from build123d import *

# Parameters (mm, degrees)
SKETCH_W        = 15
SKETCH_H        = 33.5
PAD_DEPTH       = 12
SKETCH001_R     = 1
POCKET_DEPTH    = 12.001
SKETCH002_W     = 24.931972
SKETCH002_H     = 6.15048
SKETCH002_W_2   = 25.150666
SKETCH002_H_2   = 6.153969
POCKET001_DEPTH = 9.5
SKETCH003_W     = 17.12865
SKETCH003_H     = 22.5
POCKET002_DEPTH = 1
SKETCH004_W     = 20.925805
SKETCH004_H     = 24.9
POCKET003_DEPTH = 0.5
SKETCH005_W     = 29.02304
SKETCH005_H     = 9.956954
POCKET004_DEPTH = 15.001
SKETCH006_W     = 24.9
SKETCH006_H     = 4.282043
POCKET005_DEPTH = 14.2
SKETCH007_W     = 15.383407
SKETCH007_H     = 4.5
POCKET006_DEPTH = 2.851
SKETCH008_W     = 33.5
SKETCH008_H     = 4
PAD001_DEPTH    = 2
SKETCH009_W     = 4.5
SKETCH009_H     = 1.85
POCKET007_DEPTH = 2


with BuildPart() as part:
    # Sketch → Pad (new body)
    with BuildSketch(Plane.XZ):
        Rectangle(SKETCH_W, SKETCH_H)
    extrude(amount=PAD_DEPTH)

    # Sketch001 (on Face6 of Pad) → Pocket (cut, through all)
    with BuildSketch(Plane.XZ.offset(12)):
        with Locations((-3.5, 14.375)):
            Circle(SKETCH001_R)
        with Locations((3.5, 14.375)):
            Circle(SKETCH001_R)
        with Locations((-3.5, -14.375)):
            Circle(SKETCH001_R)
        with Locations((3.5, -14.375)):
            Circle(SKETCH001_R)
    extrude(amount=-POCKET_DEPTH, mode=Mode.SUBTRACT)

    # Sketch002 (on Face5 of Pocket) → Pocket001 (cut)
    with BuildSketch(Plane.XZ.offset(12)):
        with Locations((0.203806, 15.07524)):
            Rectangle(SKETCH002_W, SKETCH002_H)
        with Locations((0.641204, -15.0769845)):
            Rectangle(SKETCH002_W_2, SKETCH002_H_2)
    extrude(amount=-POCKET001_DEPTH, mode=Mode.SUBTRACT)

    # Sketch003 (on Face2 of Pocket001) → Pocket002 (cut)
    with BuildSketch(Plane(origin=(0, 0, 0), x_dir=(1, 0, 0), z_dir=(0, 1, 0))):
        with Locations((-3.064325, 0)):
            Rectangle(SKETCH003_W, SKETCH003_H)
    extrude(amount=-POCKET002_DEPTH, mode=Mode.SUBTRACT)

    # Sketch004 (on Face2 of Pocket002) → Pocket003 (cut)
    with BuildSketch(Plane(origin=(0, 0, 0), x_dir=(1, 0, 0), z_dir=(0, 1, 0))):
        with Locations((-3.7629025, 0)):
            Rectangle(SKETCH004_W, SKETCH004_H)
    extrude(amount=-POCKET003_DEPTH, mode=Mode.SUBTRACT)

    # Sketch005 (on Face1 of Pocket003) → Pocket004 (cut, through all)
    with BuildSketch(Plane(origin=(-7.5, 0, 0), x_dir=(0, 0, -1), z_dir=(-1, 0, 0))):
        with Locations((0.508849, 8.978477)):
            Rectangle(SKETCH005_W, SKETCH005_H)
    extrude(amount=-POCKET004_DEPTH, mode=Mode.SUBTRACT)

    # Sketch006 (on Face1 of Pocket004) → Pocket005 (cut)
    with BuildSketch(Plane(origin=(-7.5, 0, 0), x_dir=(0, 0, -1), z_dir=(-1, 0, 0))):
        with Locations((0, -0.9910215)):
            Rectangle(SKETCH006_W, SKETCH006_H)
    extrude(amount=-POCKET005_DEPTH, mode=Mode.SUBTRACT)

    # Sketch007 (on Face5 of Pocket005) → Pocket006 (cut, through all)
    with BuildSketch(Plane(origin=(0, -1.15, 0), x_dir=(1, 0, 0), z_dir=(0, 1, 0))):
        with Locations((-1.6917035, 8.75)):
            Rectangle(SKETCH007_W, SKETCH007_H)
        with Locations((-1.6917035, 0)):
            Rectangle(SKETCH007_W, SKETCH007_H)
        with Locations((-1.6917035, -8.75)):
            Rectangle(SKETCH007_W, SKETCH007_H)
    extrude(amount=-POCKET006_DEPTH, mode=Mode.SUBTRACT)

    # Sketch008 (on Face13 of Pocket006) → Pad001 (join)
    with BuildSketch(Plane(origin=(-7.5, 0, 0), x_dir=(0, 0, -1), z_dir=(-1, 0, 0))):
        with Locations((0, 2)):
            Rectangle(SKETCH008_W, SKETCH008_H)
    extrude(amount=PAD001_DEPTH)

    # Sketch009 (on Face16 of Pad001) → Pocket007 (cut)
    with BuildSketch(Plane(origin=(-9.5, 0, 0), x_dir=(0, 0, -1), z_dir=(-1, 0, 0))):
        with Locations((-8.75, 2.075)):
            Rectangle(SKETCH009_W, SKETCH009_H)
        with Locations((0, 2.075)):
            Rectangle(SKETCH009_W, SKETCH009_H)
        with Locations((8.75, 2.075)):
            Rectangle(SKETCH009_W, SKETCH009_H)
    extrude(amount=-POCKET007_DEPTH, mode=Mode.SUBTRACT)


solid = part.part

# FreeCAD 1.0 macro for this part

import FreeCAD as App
import Part
import Sketcher
from FreeCAD import Vector

doc = App.newDocument("Part")
body = doc.addObject("PartDesign::Body", "Body")

# Sketch on XZ plane
sketch1 = body.newObject("Sketcher::SketchObject", "Sketch")
sketch1.AttachmentSupport = (doc.getObject("XZ_Plane"), [""])
sketch1.MapMode = "FlatFace"
sketch1.addGeometry([
    Part.LineSegment(Vector(-8, 17, 0), Vector(-8, -17, 0)),
    Part.LineSegment(Vector(-8, -17, 0), Vector(8, -17, 0)),
    Part.LineSegment(Vector(8, -17, 0), Vector(8, 17, 0)),
    Part.LineSegment(Vector(8, 17, 0), Vector(-8, 17, 0)),
], False)
sketch1.addConstraint([
    Sketcher.Constraint("Coincident", 0, 2, 1, 1),
    Sketcher.Constraint("Coincident", 1, 2, 2, 1),
    Sketcher.Constraint("Coincident", 2, 2, 3, 1),
    Sketcher.Constraint("Coincident", 3, 2, 0, 1),
    Sketcher.Constraint("Vertical", 0),
    Sketcher.Constraint("Horizontal", 1),
    Sketcher.Constraint("Vertical", 2),
    Sketcher.Constraint("Horizontal", 3),
    Sketcher.Constraint("Symmetric", 0, 2, 2, 2, -1, 1),
    Sketcher.Constraint("DistanceX", 1, 1, 1, 2, 15.0),
    Sketcher.Constraint("DistanceY", 0, 2, 0, 1, 33.5),
])
pad1 = body.newObject("PartDesign::Pad", "Pad")
pad1.Profile = sketch1
pad1.Length = 12

# Sketch on XZ plane
sketch2 = body.newObject("Sketcher::SketchObject", "Sketch001")
sketch2.AttachmentSupport = (doc.getObject("XZ_Plane"), [""])
sketch2.MapMode = "FlatFace"
sketch2.AttachmentOffset = App.Placement(Vector(0, 0, 12), App.Rotation())
sketch2.addGeometry([
    Part.Circle(Vector(-3.5, 14.4, 0), Vector(0, 0, 1), 1),
    Part.Circle(Vector(3.5, 14.4, 0), Vector(0, 0, 1), 1),
    Part.Circle(Vector(-3.5, -14.4, 0), Vector(0, 0, 1), 1),
    Part.Circle(Vector(3.5, -14.4, 0), Vector(0, 0, 1), 1),
], False)
sketch2.addConstraint([
    Sketcher.Constraint("Equal", 0, 1),
    Sketcher.Constraint("Equal", 1, 2),
    Sketcher.Constraint("Equal", 2, 3),
    Sketcher.Constraint("Symmetric", 1, 3, 2, 3, -1, 1),
    Sketcher.Constraint("Symmetric", 0, 3, 3, 3, -1, 1),
    Sketcher.Constraint("Symmetric", 0, 3, 1, 3, -2),
    Sketcher.Constraint("Diameter", 0, 2.0),
    Sketcher.Constraint("DistanceX", 0, 3, 1, 3, 7.0),
    Sketcher.Constraint("DistanceY", 2, 3, 0, 3, 28.75),
])
pocket1 = body.newObject("PartDesign::Pocket", "Pocket")
pocket1.Profile = sketch2
pocket1.Type = "ThroughAll"

# Sketch on XZ plane
sketch3 = body.newObject("Sketcher::SketchObject", "Sketch002")
sketch3.AttachmentSupport = (doc.getObject("XZ_Plane"), [""])
sketch3.MapMode = "FlatFace"
sketch3.AttachmentOffset = App.Placement(Vector(0, 0, 12), App.Rotation())
sketch3.addGeometry([
    Part.LineSegment(Vector(-12, 18, 0), Vector(-12, 12, 0)),  # 0
    Part.LineSegment(Vector(-12, 12, 0), Vector(13, 12, 0)),  # 1
    Part.LineSegment(Vector(13, 12, 0), Vector(13, 18, 0)),  # 2
    Part.LineSegment(Vector(13, 18, 0), Vector(-12, 18, 0)),  # 3
    Part.LineSegment(Vector(-12, -12, 0), Vector(-12, -18, 0)),  # 4
    Part.LineSegment(Vector(-12, -18, 0), Vector(13, -18, 0)),  # 5
    Part.LineSegment(Vector(13, -18, 0), Vector(13, -12, 0)),  # 6
    Part.LineSegment(Vector(13, -12, 0), Vector(-12, -12, 0)),  # 7
], False)
sketch3.addConstraint([
    Sketcher.Constraint("Coincident", 0, 2, 1, 1),
    Sketcher.Constraint("Coincident", 1, 2, 2, 1),
    Sketcher.Constraint("Coincident", 2, 2, 3, 1),
    Sketcher.Constraint("Coincident", 3, 2, 0, 1),
    Sketcher.Constraint("Coincident", 4, 2, 5, 1),
    Sketcher.Constraint("Coincident", 5, 2, 6, 1),
    Sketcher.Constraint("Coincident", 6, 2, 7, 1),
    Sketcher.Constraint("Coincident", 7, 2, 4, 1),
    Sketcher.Constraint("Vertical", 0),
    Sketcher.Constraint("Horizontal", 1),
    Sketcher.Constraint("Vertical", 2),
    Sketcher.Constraint("Horizontal", 3),
    Sketcher.Constraint("Vertical", 4),
    Sketcher.Constraint("Horizontal", 5),
    Sketcher.Constraint("Vertical", 6),
    Sketcher.Constraint("Horizontal", 7),
    Sketcher.Constraint("DistanceY", -1, 1, 0, 2, 12.0),
    Sketcher.Constraint("DistanceY", 6, 2, -1, 1, 12.0),
    Sketcher.Constraint("DistanceY", 0, 2, 0, 1, 6.15048),
    Sketcher.Constraint("DistanceY", 4, 2, 4, 1, 6.153969),
    Sketcher.Constraint("DistanceX", 1, 1, 1, 2, 24.931972),
    Sketcher.Constraint("DistanceX", 5, 1, 5, 2, 25.150666),
    Sketcher.Constraint("DistanceX", 0, 2, -1, 1, 12.26218),
    Sketcher.Constraint("DistanceX", 4, 2, -1, 1, 11.934129),
])
pocket2 = body.newObject("PartDesign::Pocket", "Pocket001")
pocket2.Profile = sketch3
pocket2.Length = 9.5

# Sketch on XZ plane
sketch4 = body.newObject("Sketcher::SketchObject", "Sketch003")
sketch4.AttachmentSupport = (doc.getObject("XZ_Plane"), [""])
sketch4.MapMode = "FlatFace"
sketch4.addGeometry([
    Part.LineSegment(Vector(-12, -11, 0), Vector(-12, 11, 0)),
    Part.LineSegment(Vector(-12, 11, 0), Vector(6, 11, 0)),
    Part.LineSegment(Vector(6, 11, 0), Vector(6, -11, 0)),
    Part.LineSegment(Vector(6, -11, 0), Vector(-12, -11, 0)),
], False)
sketch4.addConstraint([
    Sketcher.Constraint("Coincident", 0, 2, 1, 1),
    Sketcher.Constraint("Coincident", 1, 2, 2, 1),
    Sketcher.Constraint("Coincident", 2, 2, 3, 1),
    Sketcher.Constraint("Coincident", 3, 2, 0, 1),
    Sketcher.Constraint("Vertical", 0),
    Sketcher.Constraint("Horizontal", 1),
    Sketcher.Constraint("Vertical", 2),
    Sketcher.Constraint("Horizontal", 3),
    Sketcher.Constraint("DistanceY", 0, 1, 0, 2, 22.5),
    Sketcher.Constraint("DistanceX", -1, 1, 1, 2, 5.5),
    Sketcher.Constraint("DistanceY", -1, 1, 0, 2, 11.25),
    Sketcher.Constraint("DistanceX", 1, 1, 1, 2, 17.12865),
])
pocket3 = body.newObject("PartDesign::Pocket", "Pocket002")
pocket3.Profile = sketch4
pocket3.Length = 1
pocket3.Reversed = True

# Sketch on XZ plane
sketch5 = body.newObject("Sketcher::SketchObject", "Sketch004")
sketch5.AttachmentSupport = (doc.getObject("XZ_Plane"), [""])
sketch5.MapMode = "FlatFace"
sketch5.addGeometry([
    Part.LineSegment(Vector(-14, -12, 0), Vector(-14, 12, 0)),
    Part.LineSegment(Vector(-14, 12, 0), Vector(7, 12, 0)),
    Part.LineSegment(Vector(7, 12, 0), Vector(7, -12, 0)),
    Part.LineSegment(Vector(7, -12, 0), Vector(-14, -12, 0)),
], False)
sketch5.addConstraint([
    Sketcher.Constraint("Coincident", 0, 2, 1, 1),
    Sketcher.Constraint("Coincident", 1, 2, 2, 1),
    Sketcher.Constraint("Coincident", 2, 2, 3, 1),
    Sketcher.Constraint("Coincident", 3, 2, 0, 1),
    Sketcher.Constraint("Vertical", 0),
    Sketcher.Constraint("Horizontal", 1),
    Sketcher.Constraint("Vertical", 2),
    Sketcher.Constraint("Horizontal", 3),
    Sketcher.Constraint("DistanceY", 0, 1, 0, 2, 24.9),
    Sketcher.Constraint("DistanceX", -1, 1, 1, 2, 6.7),
    Sketcher.Constraint("DistanceY", -1, 1, 0, 2, 12.45),
    Sketcher.Constraint("DistanceX", 1, 1, 1, 2, 20.925805),
])
pocket4 = body.newObject("PartDesign::Pocket", "Pocket003")
pocket4.Profile = sketch5
pocket4.Length = 0.5
pocket4.Reversed = True

# Sketch on YZ plane
sketch6 = body.newObject("Sketcher::SketchObject", "Sketch005")
sketch6.AttachmentSupport = (doc.getObject("YZ_Plane"), [""])
sketch6.MapMode = "FlatFace"
sketch6.AttachmentOffset = App.Placement(Vector(0, 0, -7.5), App.Rotation())
sketch6.addGeometry([
    Part.LineSegment(Vector(-14, 14, 0), Vector(-4, 14, 0)),
    Part.LineSegment(Vector(-4, 14, 0), Vector(-4, -15, 0)),
    Part.LineSegment(Vector(-4, -15, 0), Vector(-14, -15, 0)),
    Part.LineSegment(Vector(-14, -15, 0), Vector(-14, 14, 0)),
], False)
sketch6.addConstraint([
    Sketcher.Constraint("Coincident", 0, 2, 1, 1),
    Sketcher.Constraint("Coincident", 1, 2, 2, 1),
    Sketcher.Constraint("Coincident", 2, 2, 3, 1),
    Sketcher.Constraint("Coincident", 3, 2, 0, 1),
    Sketcher.Constraint("Horizontal", 0),
    Sketcher.Constraint("Vertical", 1),
    Sketcher.Constraint("Horizontal", 2),
    Sketcher.Constraint("Vertical", 3),
    Sketcher.Constraint("DistanceX", 0, 2, -1, 1, 4.0),
    Sketcher.Constraint("DistanceY", 1, 2, 1, 1, 29.02304),
    Sketcher.Constraint("DistanceX", 0, 1, 0, 2, 9.956954),
    Sketcher.Constraint("DistanceY", -1, 1, 0, 2, 14.002671),
])
pocket5 = body.newObject("PartDesign::Pocket", "Pocket004")
pocket5.Profile = sketch6
pocket5.Type = "ThroughAll"
pocket5.Reversed = True

# Sketch on YZ plane
sketch7 = body.newObject("Sketcher::SketchObject", "Sketch006")
sketch7.AttachmentSupport = (doc.getObject("YZ_Plane"), [""])
sketch7.MapMode = "FlatFace"
sketch7.AttachmentOffset = App.Placement(Vector(0, 0, -7.5), App.Rotation())
sketch7.addGeometry([
    Part.LineSegment(Vector(-1.1, 12.4, 0), Vector(3.1, 12.4, 0)),
    Part.LineSegment(Vector(3.1, 12.4, 0), Vector(3.1, -12.4, 0)),
    Part.LineSegment(Vector(3.1, -12.4, 0), Vector(-1.1, -12.4, 0)),
    Part.LineSegment(Vector(-1.1, -12.4, 0), Vector(-1.1, 12.4, 0)),
], False)
sketch7.addConstraint([
    Sketcher.Constraint("Coincident", 0, 2, 1, 1),
    Sketcher.Constraint("Coincident", 1, 2, 2, 1),
    Sketcher.Constraint("Coincident", 2, 2, 3, 1),
    Sketcher.Constraint("Coincident", 3, 2, 0, 1),
    Sketcher.Constraint("Horizontal", 0),
    Sketcher.Constraint("Vertical", 1),
    Sketcher.Constraint("Horizontal", 2),
    Sketcher.Constraint("Vertical", 3),
    Sketcher.Constraint("DistanceY", 1, 2, 1, 1, 24.9),
    Sketcher.Constraint("DistanceY", -1, 1, 0, 2, 12.45),
    Sketcher.Constraint("DistanceX", 2, 2, -1, 1, 1.15),
    Sketcher.Constraint("DistanceX", 0, 1, 0, 2, 4.282043),
])
pocket6 = body.newObject("PartDesign::Pocket", "Pocket005")
pocket6.Profile = sketch7
pocket6.Length = 14.2
pocket6.Reversed = True

# Sketch on XZ plane
sketch8 = body.newObject("Sketcher::SketchObject", "Sketch007")
sketch8.AttachmentSupport = (doc.getObject("XZ_Plane"), [""])
sketch8.MapMode = "FlatFace"
sketch8.AttachmentOffset = App.Placement(Vector(0, 0, 1.15), App.Rotation())
sketch8.addGeometry([
    Part.LineSegment(Vector(-9.4, -11, 0), Vector(-9.4, -6.5, 0)),  # 0
    Part.LineSegment(Vector(-9.4, -6.5, 0), Vector(6, -6.5, 0)),  # 1
    Part.LineSegment(Vector(6, -6.5, 0), Vector(6, -11, 0)),  # 2
    Part.LineSegment(Vector(6, -11, 0), Vector(-9.4, -11, 0)),  # 3
    Part.LineSegment(Vector(-9.4, -2.2, 0), Vector(-9.4, 2.2, 0)),  # 4
    Part.LineSegment(Vector(-9.4, 2.2, 0), Vector(6, 2.2, 0)),  # 5
    Part.LineSegment(Vector(6, 2.2, 0), Vector(6, -2.2, 0)),  # 6
    Part.LineSegment(Vector(6, -2.2, 0), Vector(-9.4, -2.2, 0)),  # 7
    Part.LineSegment(Vector(-9.4, 6.5, 0), Vector(-9.4, 11, 0)),  # 8
    Part.LineSegment(Vector(-9.4, 11, 0), Vector(6, 11, 0)),  # 9
    Part.LineSegment(Vector(6, 11, 0), Vector(6, 6.5, 0)),  # 10
    Part.LineSegment(Vector(6, 6.5, 0), Vector(-9.4, 6.5, 0)),  # 11
], False)
sketch8.addConstraint([
    Sketcher.Constraint("Coincident", 0, 2, 1, 1),
    Sketcher.Constraint("Coincident", 1, 2, 2, 1),
    Sketcher.Constraint("Coincident", 2, 2, 3, 1),
    Sketcher.Constraint("Coincident", 3, 2, 0, 1),
    Sketcher.Constraint("Coincident", 4, 2, 5, 1),
    Sketcher.Constraint("Coincident", 5, 2, 6, 1),
    Sketcher.Constraint("Coincident", 6, 2, 7, 1),
    Sketcher.Constraint("Coincident", 7, 2, 4, 1),
    Sketcher.Constraint("Coincident", 8, 2, 9, 1),
    Sketcher.Constraint("Coincident", 9, 2, 10, 1),
    Sketcher.Constraint("Coincident", 10, 2, 11, 1),
    Sketcher.Constraint("Coincident", 11, 2, 8, 1),
    Sketcher.Constraint("Vertical", 0),
    Sketcher.Constraint("Horizontal", 1),
    Sketcher.Constraint("Vertical", 2),
    Sketcher.Constraint("Horizontal", 3),
    Sketcher.Constraint("Vertical", 4),
    Sketcher.Constraint("Horizontal", 5),
    Sketcher.Constraint("Vertical", 6),
    Sketcher.Constraint("Horizontal", 7),
    Sketcher.Constraint("Vertical", 8),
    Sketcher.Constraint("Horizontal", 9),
    Sketcher.Constraint("Vertical", 10),
    Sketcher.Constraint("Horizontal", 11),
    Sketcher.Constraint("Symmetric", 3, 2, 8, 2, -1),
    Sketcher.Constraint("Symmetric", 1, 2, 10, 2, -1),
    Sketcher.Constraint("Vertical", 3, 2, 4, 2),
    Sketcher.Constraint("Vertical", 2, 2, 5, 2),
    Sketcher.Constraint("Equal", 2, 4),
    Sketcher.Constraint("DistanceY", 0, 1, 0, 2, 4.5),
    Sketcher.Constraint("DistanceX", -1, 1, 1, 2, 6.0),
    Sketcher.Constraint("DistanceY", 2, 2, -1, 1, 11.0),
    Sketcher.Constraint("DistanceY", -1, 1, 4, 2, 2.25),
    Sketcher.Constraint("DistanceX", 1, 1, 1, 2, 15.383407),
])
pocket7 = body.newObject("PartDesign::Pocket", "Pocket006")
pocket7.Profile = sketch8
pocket7.Type = "ThroughAll"
pocket7.Reversed = True

# Sketch on YZ plane
sketch9 = body.newObject("Sketcher::SketchObject", "Sketch008")
sketch9.AttachmentSupport = (doc.getObject("YZ_Plane"), [""])
sketch9.MapMode = "FlatFace"
sketch9.AttachmentOffset = App.Placement(Vector(0, 0, -7.5), App.Rotation())
sketch9.addGeometry([
    Part.LineSegment(Vector(-4, 16.8, 0), Vector(0, 16.8, 0)),
    Part.LineSegment(Vector(0, 16.8, 0), Vector(0, -16.8, 0)),
    Part.LineSegment(Vector(0, -16.8, 0), Vector(-4, -16.8, 0)),
    Part.LineSegment(Vector(-4, -16.8, 0), Vector(-4, 16.8, 0)),
], False)
sketch9.addConstraint([
    Sketcher.Constraint("Coincident", 0, 2, 1, 1),
    Sketcher.Constraint("Coincident", 1, 2, 2, 1),
    Sketcher.Constraint("Coincident", 2, 2, 3, 1),
    Sketcher.Constraint("Coincident", 3, 2, 0, 1),
    Sketcher.Constraint("Horizontal", 0),
    Sketcher.Constraint("Vertical", 1),
    Sketcher.Constraint("Horizontal", 2),
    Sketcher.Constraint("Vertical", 3),
    Sketcher.Constraint("Symmetric", 0, 2, 1, 2, -1, 1),
    Sketcher.Constraint("DistanceX", 0, 1, 0, 2, 4.0),
    Sketcher.Constraint("DistanceY", 1, 2, 1, 1, 33.5),
])
pad2 = body.newObject("PartDesign::Pad", "Pad001")
pad2.Profile = sketch9
pad2.Length = 2
pad2.Reversed = True

# Sketch on YZ plane
sketch10 = body.newObject("Sketcher::SketchObject", "Sketch009")
sketch10.AttachmentSupport = (doc.getObject("YZ_Plane"), [""])
sketch10.MapMode = "FlatFace"
sketch10.AttachmentOffset = App.Placement(Vector(0, 0, -9.5), App.Rotation())
sketch10.addGeometry([
    Part.LineSegment(Vector(-3, 11, 0), Vector(-1.1, 11, 0)),  # 0
    Part.LineSegment(Vector(-1.1, 11, 0), Vector(-1.1, 6.5, 0)),  # 1
    Part.LineSegment(Vector(-1.1, 6.5, 0), Vector(-3, 6.5, 0)),  # 2
    Part.LineSegment(Vector(-3, 6.5, 0), Vector(-3, 11, 0)),  # 3
    Part.LineSegment(Vector(-3, 2.2, 0), Vector(-1.1, 2.2, 0)),  # 4
    Part.LineSegment(Vector(-1.1, 2.2, 0), Vector(-1.1, -2.2, 0)),  # 5
    Part.LineSegment(Vector(-1.1, -2.2, 0), Vector(-3, -2.2, 0)),  # 6
    Part.LineSegment(Vector(-3, -2.2, 0), Vector(-3, 2.2, 0)),  # 7
    Part.LineSegment(Vector(-3, -6.5, 0), Vector(-1.1, -6.5, 0)),  # 8
    Part.LineSegment(Vector(-1.1, -6.5, 0), Vector(-1.1, -11, 0)),  # 9
    Part.LineSegment(Vector(-1.1, -11, 0), Vector(-3, -11, 0)),  # 10
    Part.LineSegment(Vector(-3, -11, 0), Vector(-3, -6.5, 0)),  # 11
], False)
sketch10.addConstraint([
    Sketcher.Constraint("Coincident", 0, 2, 1, 1),
    Sketcher.Constraint("Coincident", 1, 2, 2, 1),
    Sketcher.Constraint("Coincident", 2, 2, 3, 1),
    Sketcher.Constraint("Coincident", 3, 2, 0, 1),
    Sketcher.Constraint("Coincident", 4, 2, 5, 1),
    Sketcher.Constraint("Coincident", 5, 2, 6, 1),
    Sketcher.Constraint("Coincident", 6, 2, 7, 1),
    Sketcher.Constraint("Coincident", 7, 2, 4, 1),
    Sketcher.Constraint("Coincident", 8, 2, 9, 1),
    Sketcher.Constraint("Coincident", 9, 2, 10, 1),
    Sketcher.Constraint("Coincident", 10, 2, 11, 1),
    Sketcher.Constraint("Coincident", 11, 2, 8, 1),
    Sketcher.Constraint("Horizontal", 0),
    Sketcher.Constraint("Vertical", 1),
    Sketcher.Constraint("Horizontal", 2),
    Sketcher.Constraint("Vertical", 3),
    Sketcher.Constraint("Horizontal", 4),
    Sketcher.Constraint("Vertical", 5),
    Sketcher.Constraint("Horizontal", 6),
    Sketcher.Constraint("Vertical", 7),
    Sketcher.Constraint("Horizontal", 8),
    Sketcher.Constraint("Vertical", 9),
    Sketcher.Constraint("Horizontal", 10),
    Sketcher.Constraint("Vertical", 11),
    Sketcher.Constraint("Symmetric", 1, 2, 8, 2, -1),
    Sketcher.Constraint("Symmetric", 3, 2, 10, 2, -1),
    Sketcher.Constraint("Vertical", 1, 2, 4, 2),
    Sketcher.Constraint("Vertical", 3, 2, 6, 2),
    Sketcher.Constraint("Equal", 3, 5),
    Sketcher.Constraint("DistanceY", 1, 2, 1, 1, 4.5),
    Sketcher.Constraint("DistanceY", -1, 1, 0, 2, 11.0),
    Sketcher.Constraint("DistanceX", 2, 2, -1, 1, 3.0),
    Sketcher.Constraint("DistanceX", 0, 1, 0, 2, 1.85),
    Sketcher.Constraint("DistanceY", -1, 1, 4, 2, 2.25),
])
pocket8 = body.newObject("PartDesign::Pocket", "Pocket007")
pocket8.Profile = sketch10
pocket8.Length = 2
pocket8.Reversed = True

doc.recompute()
